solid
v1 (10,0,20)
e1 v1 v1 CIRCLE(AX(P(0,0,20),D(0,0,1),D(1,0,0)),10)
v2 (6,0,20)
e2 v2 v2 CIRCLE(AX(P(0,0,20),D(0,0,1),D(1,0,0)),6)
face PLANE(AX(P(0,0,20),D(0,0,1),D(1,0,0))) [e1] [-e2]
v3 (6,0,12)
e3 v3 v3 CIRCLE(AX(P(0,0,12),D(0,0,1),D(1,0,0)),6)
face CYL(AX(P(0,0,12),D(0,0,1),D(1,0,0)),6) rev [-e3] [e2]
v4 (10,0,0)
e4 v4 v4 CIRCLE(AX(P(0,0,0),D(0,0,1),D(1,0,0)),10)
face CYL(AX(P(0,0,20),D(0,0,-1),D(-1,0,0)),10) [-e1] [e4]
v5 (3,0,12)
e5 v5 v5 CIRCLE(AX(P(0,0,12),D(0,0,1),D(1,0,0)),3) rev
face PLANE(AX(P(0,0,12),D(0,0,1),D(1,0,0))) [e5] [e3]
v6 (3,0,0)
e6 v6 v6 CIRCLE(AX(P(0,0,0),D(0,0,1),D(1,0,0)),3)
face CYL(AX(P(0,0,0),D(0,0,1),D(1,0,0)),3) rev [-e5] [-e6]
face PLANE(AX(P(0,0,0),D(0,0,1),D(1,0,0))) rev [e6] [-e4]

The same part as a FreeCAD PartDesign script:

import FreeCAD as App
import Part
import Sketcher

doc = App.newDocument("Part")
body = doc.addObject("PartDesign::Body", "Body")

sketch1 = body.newObject("Sketcher::SketchObject", "Sketch")
sketch1.AttachmentSupport = (doc.getObject("XY_Plane"), [""])
sketch1.MapMode = "FlatFace"
sketch1.addGeometry(Part.Circle(App.Vector(0, 0, 0), App.Vector(0, 0, 1), 10), False)
sketch1.addConstraint([
    Sketcher.Constraint("Coincident", 0, 3, -1, 1),
    Sketcher.Constraint("Diameter", 0, 20.0),
])
pad1 = body.newObject("PartDesign::Pad", "Pad")
pad1.Profile = sketch1
pad1.Length = 20

sketch2 = body.newObject("Sketcher::SketchObject", "Sketch001")
sketch2.AttachmentSupport = (doc.getObject("XY_Plane"), [""])
sketch2.MapMode = "FlatFace"
sketch2.AttachmentOffset = App.Placement(App.Vector(0, 0, 20), App.Rotation())
sketch2.addGeometry(Part.Circle(App.Vector(0, 0, 0), App.Vector(0, 0, 1), 3), False)
sketch2.addConstraint([
    Sketcher.Constraint("Coincident", 0, 3, -1, 1),
    Sketcher.Constraint("Diameter", 0, 6.0),
])
pocket1 = body.newObject("PartDesign::Pocket", "Pocket")
pocket1.Profile = sketch2
pocket1.Type = "ThroughAll"

sketch3 = body.newObject("Sketcher::SketchObject", "Sketch002")
sketch3.AttachmentSupport = (doc.getObject("XY_Plane"), [""])
sketch3.MapMode = "FlatFace"
sketch3.AttachmentOffset = App.Placement(App.Vector(0, 0, 20), App.Rotation())
sketch3.addGeometry(Part.Circle(App.Vector(0, 0, 0), App.Vector(0, 0, 1), 6), False)
sketch3.addConstraint([
    Sketcher.Constraint("Coincident", 0, 3, -1, 1),
    Sketcher.Constraint("Diameter", 0, 12.0),
])
pocket2 = body.newObject("PartDesign::Pocket", "Pocket001")
pocket2.Profile = sketch3
pocket2.Length = 8

doc.recompute()
